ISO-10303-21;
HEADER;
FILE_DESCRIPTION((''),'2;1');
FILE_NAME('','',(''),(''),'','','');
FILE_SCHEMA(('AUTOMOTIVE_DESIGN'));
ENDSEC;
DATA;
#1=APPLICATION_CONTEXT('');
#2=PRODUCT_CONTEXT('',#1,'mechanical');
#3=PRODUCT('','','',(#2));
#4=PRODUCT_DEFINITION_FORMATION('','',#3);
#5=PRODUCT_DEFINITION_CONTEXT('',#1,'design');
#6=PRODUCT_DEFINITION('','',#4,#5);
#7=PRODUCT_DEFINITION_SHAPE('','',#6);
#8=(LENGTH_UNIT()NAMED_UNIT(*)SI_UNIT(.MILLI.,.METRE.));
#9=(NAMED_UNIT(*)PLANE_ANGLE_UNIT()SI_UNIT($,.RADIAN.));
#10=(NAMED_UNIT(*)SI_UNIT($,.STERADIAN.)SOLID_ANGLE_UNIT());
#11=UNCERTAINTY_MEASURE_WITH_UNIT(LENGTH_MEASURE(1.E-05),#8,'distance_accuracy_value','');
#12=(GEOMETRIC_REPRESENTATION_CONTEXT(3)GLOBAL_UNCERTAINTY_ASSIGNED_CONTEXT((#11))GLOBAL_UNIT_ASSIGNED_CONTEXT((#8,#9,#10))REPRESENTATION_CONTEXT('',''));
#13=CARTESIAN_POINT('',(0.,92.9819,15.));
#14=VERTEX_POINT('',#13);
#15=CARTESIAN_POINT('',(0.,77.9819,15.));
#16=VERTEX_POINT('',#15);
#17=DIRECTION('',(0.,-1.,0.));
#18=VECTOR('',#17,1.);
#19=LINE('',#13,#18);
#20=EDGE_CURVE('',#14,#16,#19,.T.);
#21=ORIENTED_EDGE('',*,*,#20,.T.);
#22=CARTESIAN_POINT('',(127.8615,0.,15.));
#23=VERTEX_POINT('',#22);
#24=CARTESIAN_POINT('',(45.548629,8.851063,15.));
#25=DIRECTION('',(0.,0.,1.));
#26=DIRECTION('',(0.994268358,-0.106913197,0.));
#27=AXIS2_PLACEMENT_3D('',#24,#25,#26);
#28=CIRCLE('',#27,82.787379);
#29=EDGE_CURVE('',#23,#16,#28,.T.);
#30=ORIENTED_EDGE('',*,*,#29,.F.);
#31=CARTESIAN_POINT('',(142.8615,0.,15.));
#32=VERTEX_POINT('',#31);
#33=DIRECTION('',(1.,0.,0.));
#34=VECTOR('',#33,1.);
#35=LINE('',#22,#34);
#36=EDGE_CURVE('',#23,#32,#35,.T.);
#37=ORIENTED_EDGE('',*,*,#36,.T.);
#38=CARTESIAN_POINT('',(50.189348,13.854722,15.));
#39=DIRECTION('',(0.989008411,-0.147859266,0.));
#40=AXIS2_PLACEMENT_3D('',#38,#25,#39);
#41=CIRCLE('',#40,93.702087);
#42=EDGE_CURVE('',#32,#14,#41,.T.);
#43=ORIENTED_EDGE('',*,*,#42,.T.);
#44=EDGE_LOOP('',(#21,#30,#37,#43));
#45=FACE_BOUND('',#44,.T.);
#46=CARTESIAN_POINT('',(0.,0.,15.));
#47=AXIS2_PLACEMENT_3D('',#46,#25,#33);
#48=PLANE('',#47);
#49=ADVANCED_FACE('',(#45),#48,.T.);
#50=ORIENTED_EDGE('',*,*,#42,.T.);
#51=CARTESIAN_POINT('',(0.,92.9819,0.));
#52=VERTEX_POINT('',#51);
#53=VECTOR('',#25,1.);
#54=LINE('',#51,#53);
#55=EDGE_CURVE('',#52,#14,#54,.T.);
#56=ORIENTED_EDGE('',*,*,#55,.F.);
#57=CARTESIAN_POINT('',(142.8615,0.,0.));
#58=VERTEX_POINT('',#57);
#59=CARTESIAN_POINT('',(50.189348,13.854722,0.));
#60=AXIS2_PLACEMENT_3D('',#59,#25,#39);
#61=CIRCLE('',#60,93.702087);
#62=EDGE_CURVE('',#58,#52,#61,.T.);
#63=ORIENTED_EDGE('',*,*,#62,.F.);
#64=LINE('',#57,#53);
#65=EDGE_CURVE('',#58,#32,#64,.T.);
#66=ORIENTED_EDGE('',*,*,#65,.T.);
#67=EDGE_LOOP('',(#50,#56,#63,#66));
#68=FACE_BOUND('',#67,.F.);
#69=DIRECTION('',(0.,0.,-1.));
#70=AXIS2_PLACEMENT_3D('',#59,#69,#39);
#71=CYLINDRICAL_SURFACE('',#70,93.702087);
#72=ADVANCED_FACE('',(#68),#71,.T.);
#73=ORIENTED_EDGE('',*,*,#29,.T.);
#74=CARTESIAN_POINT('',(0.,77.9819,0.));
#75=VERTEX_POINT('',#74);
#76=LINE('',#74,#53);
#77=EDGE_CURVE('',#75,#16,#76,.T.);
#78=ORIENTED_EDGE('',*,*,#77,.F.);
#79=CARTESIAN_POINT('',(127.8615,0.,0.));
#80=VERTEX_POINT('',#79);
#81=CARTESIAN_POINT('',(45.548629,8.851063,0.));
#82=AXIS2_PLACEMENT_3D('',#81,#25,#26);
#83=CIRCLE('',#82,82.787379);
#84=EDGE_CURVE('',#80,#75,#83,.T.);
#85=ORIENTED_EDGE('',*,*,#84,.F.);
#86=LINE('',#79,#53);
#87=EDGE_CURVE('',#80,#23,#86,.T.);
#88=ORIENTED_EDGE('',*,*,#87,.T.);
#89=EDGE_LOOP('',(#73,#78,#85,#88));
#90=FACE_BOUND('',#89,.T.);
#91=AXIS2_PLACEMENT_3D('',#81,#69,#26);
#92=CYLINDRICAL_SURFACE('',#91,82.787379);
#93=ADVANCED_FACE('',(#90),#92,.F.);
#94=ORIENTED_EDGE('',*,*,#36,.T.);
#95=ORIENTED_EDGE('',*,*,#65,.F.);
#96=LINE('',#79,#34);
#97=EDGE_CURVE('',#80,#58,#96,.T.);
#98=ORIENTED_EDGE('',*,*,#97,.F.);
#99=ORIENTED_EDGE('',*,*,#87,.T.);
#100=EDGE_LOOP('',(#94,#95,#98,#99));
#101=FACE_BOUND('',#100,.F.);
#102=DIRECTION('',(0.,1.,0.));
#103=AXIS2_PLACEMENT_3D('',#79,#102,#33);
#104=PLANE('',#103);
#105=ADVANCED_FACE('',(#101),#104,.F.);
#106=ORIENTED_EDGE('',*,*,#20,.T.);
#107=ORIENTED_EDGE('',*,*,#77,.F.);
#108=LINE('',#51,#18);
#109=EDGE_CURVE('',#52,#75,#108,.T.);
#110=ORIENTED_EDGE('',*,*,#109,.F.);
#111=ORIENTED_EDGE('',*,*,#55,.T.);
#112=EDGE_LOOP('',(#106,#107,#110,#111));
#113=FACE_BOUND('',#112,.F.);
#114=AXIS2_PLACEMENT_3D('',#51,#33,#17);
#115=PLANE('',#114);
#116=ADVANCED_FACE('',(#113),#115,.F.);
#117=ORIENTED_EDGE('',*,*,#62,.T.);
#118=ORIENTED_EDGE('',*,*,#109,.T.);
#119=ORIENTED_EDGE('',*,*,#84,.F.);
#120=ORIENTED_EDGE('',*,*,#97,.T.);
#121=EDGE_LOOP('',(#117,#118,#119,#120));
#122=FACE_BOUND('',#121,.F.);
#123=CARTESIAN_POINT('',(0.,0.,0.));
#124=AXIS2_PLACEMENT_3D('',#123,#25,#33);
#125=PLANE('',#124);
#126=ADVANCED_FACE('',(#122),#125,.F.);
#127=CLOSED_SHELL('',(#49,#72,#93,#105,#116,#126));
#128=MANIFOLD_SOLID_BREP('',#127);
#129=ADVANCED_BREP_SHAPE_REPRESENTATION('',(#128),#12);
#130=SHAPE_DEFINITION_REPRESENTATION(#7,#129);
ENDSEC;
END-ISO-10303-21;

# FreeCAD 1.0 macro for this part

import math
import FreeCAD as App
import Part
import Sketcher
Q = App.Units.Quantity

doc = App.newDocument("Part")
body = doc.addObject("PartDesign::Body", "Body")

# Sketch on XY plane
sketch1 = body.newObject("Sketcher::SketchObject", "Sketch")
sketch1.AttachmentSupport = (doc.getObject("XY_Plane"), [""])
sketch1.MapMode = "FlatFace"
sketch1.addGeometry([
    Part.LineSegment(App.Vector(127.8615, 0, 0), App.Vector(142.8615, 0, 0)),
    Part.ArcOfCircle(Part.Circle(App.Vector(50.1893, 13.8547, 0), App.Vector(0, 0, 1), 93.702131), math.radians(-8.502871), math.radians(122.386397)),
    Part.LineSegment(App.Vector(0, 92.9819, 0), App.Vector(0, 77.9819, 0)),
    Part.ArcOfCircle(Part.Circle(App.Vector(45.5485, 8.851, 0), App.Vector(0, 0, 1), 82.7875), math.radians(-6.137352), math.radians(123.379818)),
], False)
sketch1.addConstraint([
    Sketcher.Constraint("Coincident", 0, 2, 1, 1),
    Sketcher.Constraint("Coincident", 1, 2, 2, 1),
    Sketcher.Constraint("Coincident", 2, 2, 3, 2),
    Sketcher.Constraint("Coincident", 3, 1, 0, 1),
    Sketcher.Constraint("Horizontal", 0),
    Sketcher.Constraint("Vertical", 2),
    Sketcher.Constraint("PointOnObject", 0, 2, -1),
    Sketcher.Constraint("PointOnObject", 1, 2, -2),
    Sketcher.Constraint("Equal", 0, 2),
    Sketcher.Constraint("DistanceX", 0, 1, 0, 2, Q("15 mm")),
    Sketcher.Constraint("Radius", 1, Q("93.7021 mm")),
    Sketcher.Constraint("Radius", 3, Q("82.7875 mm")),
    Sketcher.Constraint("DistanceY", -1, 1, 3, 3, Q("8.851 mm")),
    Sketcher.Constraint("DistanceY", -1, 1, 1, 2, Q("92.982 mm")),
])
pad1 = body.newObject("PartDesign::Pad", "Pad")
pad1.Profile = sketch1
pad1.Length = 15

doc.recompute()
